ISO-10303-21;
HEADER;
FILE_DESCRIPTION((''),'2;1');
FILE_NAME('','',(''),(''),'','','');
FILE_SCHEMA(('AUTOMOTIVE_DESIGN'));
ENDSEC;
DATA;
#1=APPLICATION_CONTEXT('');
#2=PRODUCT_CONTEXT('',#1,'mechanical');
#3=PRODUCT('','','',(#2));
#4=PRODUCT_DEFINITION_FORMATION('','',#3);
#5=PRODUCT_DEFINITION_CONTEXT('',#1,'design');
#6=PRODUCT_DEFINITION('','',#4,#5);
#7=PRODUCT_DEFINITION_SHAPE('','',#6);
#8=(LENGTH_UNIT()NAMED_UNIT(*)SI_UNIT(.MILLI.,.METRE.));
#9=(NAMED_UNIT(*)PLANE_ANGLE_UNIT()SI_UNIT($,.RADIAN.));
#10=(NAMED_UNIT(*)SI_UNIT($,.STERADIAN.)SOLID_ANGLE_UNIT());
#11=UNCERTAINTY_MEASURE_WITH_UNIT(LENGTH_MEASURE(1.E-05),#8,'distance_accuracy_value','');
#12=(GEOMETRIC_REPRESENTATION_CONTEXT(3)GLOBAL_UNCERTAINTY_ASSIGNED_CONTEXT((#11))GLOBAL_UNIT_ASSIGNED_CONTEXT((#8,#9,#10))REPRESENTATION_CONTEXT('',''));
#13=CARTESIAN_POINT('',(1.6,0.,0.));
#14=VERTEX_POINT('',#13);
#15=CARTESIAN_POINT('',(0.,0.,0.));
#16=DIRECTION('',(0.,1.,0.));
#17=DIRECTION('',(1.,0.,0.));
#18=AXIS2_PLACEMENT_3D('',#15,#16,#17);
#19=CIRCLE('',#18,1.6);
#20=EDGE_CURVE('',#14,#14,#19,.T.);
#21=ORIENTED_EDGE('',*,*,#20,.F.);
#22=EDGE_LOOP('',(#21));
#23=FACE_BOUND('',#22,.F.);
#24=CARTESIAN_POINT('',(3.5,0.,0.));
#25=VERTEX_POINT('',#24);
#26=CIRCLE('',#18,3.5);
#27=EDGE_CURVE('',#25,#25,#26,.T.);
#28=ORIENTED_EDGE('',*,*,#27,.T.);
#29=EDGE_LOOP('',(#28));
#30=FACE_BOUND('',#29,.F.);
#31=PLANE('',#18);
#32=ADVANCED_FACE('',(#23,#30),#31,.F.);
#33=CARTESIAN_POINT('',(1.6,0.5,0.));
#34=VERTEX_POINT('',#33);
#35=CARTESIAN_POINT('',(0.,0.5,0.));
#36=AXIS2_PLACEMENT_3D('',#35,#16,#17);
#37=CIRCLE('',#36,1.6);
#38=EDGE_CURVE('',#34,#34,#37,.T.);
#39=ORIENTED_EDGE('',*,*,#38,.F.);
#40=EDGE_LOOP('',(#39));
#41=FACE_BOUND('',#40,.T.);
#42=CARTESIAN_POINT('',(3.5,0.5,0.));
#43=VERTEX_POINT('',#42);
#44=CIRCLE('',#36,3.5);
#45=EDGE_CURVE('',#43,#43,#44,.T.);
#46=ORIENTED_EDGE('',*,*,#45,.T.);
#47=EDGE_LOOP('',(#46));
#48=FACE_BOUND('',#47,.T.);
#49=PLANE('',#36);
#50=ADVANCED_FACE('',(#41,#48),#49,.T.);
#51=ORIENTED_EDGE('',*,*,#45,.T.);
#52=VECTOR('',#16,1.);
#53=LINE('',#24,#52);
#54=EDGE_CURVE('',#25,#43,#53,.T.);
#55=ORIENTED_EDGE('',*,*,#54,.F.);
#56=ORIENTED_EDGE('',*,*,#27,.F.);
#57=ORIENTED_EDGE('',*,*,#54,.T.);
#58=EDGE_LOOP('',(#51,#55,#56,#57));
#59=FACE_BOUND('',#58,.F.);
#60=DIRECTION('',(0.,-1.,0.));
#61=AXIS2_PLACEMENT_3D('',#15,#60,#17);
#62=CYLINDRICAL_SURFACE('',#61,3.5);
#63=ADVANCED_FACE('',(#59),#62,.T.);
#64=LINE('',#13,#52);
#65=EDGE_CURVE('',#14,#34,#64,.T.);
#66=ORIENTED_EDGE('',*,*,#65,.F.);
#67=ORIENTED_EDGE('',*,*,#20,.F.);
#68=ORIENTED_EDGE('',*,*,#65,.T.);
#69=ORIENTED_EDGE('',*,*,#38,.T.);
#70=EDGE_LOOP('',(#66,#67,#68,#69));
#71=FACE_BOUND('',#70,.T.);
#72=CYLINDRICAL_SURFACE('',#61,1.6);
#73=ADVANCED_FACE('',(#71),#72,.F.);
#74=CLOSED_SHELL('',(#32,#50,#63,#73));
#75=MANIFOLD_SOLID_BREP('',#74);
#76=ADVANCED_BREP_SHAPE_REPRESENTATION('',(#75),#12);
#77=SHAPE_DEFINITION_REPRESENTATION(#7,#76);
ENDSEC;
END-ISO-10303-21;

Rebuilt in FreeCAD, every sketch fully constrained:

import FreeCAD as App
import Part
import Sketcher
Q = App.Units.Quantity

doc = App.newDocument("Part")
body = doc.addObject("PartDesign::Body", "Body")

# Sketch on XZ plane
sketch1 = body.newObject("Sketcher::SketchObject", "Sketch")
sketch1.AttachmentSupport = (doc.getObject("XZ_Plane"), [""])
sketch1.MapMode = "FlatFace"
sketch1.addGeometry(Part.Circle(App.Vector(0, 0, 0), App.Vector(0, 0, 1), 3.5), False)
sketch1.addGeometry(Part.Circle(App.Vector(0, 0, 0), App.Vector(0, 0, 1), 1.6), False)
sketch1.addConstraint(Sketcher.Constraint("Coincident", 0, 3, -1, 1))
sketch1.addConstraint(Sketcher.Constraint("Coincident", 1, 3, -1, 1))
sketch1.addConstraint(Sketcher.Constraint("Diameter", 0, Q("7 mm")))
sketch1.addConstraint(Sketcher.Constraint("Diameter", 1, Q("3.2 mm")))
pad1 = body.newObject("PartDesign::Pad", "Pad")
pad1.Profile = sketch1
pad1.Length = 0.5
pad1.Reversed = True

doc.recompute()
